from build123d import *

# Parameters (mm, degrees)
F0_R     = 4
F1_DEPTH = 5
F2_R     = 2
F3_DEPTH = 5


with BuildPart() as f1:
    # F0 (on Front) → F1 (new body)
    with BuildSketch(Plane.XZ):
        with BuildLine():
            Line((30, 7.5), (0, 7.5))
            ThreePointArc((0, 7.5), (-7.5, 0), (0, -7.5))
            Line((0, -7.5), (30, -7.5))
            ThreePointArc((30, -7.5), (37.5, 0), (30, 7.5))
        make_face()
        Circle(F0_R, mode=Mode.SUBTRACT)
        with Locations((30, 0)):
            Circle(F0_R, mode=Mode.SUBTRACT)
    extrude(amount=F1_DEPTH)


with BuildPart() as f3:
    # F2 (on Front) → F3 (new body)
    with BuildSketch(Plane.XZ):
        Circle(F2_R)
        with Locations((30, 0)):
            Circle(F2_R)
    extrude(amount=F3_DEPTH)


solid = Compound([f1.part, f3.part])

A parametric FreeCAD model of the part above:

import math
import FreeCAD as App
import Part
import Sketcher
from FreeCAD import Vector

doc = App.newDocument("Part")
body = doc.addObject("PartDesign::Body", "Body")

# Sketch on XZ plane
sketch1 = doc.addObject("Sketcher::SketchObject", "Sketch")
body.addObject(sketch1)
sketch1.AttachmentSupport = (doc.XZ_Plane, [""])
sketch1.MapMode = "FlatFace"
sketch1.addGeometry(Part.LineSegment(Vector(30, 7.5, 0), Vector(0, 7.5, 0)), False)
sketch1.addGeometry(Part.ArcOfCircle(Part.Circle(Vector(0, 0, 0), Vector(0, 0, 1), 7.5), math.radians(90), math.radians(270)), False)
sketch1.addGeometry(Part.LineSegment(Vector(0, -7.5, 0), Vector(30, -7.5, 0)), False)
sketch1.addGeometry(Part.ArcOfCircle(Part.Circle(Vector(30, 0, 0), Vector(0, 0, 1), 7.5), math.radians(-90), math.radians(90)), False)
sketch1.addGeometry(Part.Circle(Vector(0, 0, 0), Vector(0, 0, 1), 4), False)
sketch1.addGeometry(Part.Circle(Vector(30, 0, 0), Vector(0, 0, 1), 4), False)
sketch1.addConstraint(Sketcher.Constraint("Tangent", 0, 2, 1, 1))
sketch1.addConstraint(Sketcher.Constraint("Tangent", 1, 2, 2, 1))
sketch1.addConstraint(Sketcher.Constraint("Tangent", 2, 2, 3, 1))
sketch1.addConstraint(Sketcher.Constraint("Tangent", 3, 2, 0, 1))
sketch1.addConstraint(Sketcher.Constraint("Horizontal", 0))
sketch1.addConstraint(Sketcher.Constraint("Horizontal", 2))
sketch1.addConstraint(Sketcher.Constraint("Coincident", 1, 3, -1, 1))
sketch1.addConstraint(Sketcher.Constraint("Coincident", 4, 3, -1, 1))
sketch1.addConstraint(Sketcher.Constraint("Coincident", 5, 3, 3, 3))
sketch1.addConstraint(Sketcher.Constraint("Equal", 4, 5))
sketch1.addConstraint(Sketcher.Constraint("Diameter", 4, 8.0))
sketch1.addConstraint(Sketcher.Constraint("Radius", 1, 7.5))
sketch1.addConstraint(Sketcher.Constraint("DistanceX", 0, 2, 0, 1, 30.0))
pad1 = doc.addObject("PartDesign::Pad", "Pad")
body.addObject(pad1)
pad1.Profile = sketch1
pad1.Length = 5
body2 = doc.addObject("PartDesign::Body", "Body001")
body2.AllowCompound = True

# Sketch on XZ plane
sketch2 = doc.addObject("Sketcher::SketchObject", "Sketch001")
body2.addObject(sketch2)
sketch2.AttachmentSupport = (doc.getObject("XZ_Plane001"), [""])
sketch2.MapMode = "FlatFace"
sketch2.addGeometry(Part.Circle(Vector(0, 0, 0), Vector(0, 0, 1), 2), False)
sketch2.addGeometry(Part.Circle(Vector(30, 0, 0), Vector(0, 0, 1), 2), False)
sketch2.addConstraint(Sketcher.Constraint("Coincident", 0, 3, -1, 1))
sketch2.addConstraint(Sketcher.Constraint("Equal", 0, 1))
sketch2.addConstraint(Sketcher.Constraint("PointOnObject", 1, 3, -1))
sketch2.addConstraint(Sketcher.Constraint("Diameter", 0, 4.0))
sketch2.addConstraint(Sketcher.Constraint("DistanceX", -1, 1, 1, 3, 30.0))
pad2 = doc.addObject("PartDesign::Pad", "Pad001")
body2.addObject(pad2)
pad2.Profile = sketch2
pad2.Length = 5

doc.recompute()
